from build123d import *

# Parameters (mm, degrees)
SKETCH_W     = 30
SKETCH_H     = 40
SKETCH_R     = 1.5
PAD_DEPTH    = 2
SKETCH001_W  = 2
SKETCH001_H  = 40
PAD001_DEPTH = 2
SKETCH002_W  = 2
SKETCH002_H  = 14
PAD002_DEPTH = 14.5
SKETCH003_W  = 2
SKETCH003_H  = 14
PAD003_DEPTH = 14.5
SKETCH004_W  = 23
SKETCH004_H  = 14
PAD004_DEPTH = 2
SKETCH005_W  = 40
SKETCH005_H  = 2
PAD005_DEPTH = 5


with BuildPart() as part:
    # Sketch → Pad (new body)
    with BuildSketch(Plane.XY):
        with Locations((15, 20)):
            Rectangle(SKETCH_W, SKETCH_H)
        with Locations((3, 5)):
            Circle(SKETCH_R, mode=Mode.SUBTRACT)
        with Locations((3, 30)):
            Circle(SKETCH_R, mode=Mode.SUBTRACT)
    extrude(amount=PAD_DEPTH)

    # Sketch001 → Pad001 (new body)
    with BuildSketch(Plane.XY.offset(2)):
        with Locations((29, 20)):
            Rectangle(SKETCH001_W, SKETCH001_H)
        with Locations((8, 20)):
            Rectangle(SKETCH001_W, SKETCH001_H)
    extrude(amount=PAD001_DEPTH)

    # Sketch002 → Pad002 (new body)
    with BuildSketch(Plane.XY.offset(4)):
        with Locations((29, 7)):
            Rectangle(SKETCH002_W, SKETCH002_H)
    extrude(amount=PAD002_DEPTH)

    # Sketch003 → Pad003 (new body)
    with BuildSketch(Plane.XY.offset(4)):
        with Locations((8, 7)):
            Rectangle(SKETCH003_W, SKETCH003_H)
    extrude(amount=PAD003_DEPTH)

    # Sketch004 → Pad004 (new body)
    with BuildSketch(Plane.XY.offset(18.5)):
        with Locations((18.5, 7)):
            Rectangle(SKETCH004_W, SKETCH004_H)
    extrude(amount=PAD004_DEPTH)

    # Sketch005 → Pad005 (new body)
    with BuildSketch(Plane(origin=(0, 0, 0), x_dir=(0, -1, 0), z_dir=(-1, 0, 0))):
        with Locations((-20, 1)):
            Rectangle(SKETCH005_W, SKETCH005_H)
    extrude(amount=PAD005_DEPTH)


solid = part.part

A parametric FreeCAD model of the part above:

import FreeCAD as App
import Part
import Sketcher
from FreeCAD import Vector
Q = App.Units.Quantity

doc = App.newDocument("Part")
body = doc.addObject("PartDesign::Body", "Body")

sketch1 = body.newObject("Sketcher::SketchObject", "Sketch")
sketch1.AttachmentSupport = (doc.getObject("XY_Plane"), [""])
sketch1.MapMode = "FlatFace"
sketch1.addGeometry([
    Part.LineSegment(Vector(0, 40, 0), Vector(0, 0, 0)),
    Part.LineSegment(Vector(0, 0, 0), Vector(30, 0, 0)),
    Part.LineSegment(Vector(30, 0, 0), Vector(30, 40, 0)),
    Part.LineSegment(Vector(30, 40, 0), Vector(0, 40, 0)),
    Part.Circle(Vector(3, 5, 0), Vector(0, 0, 1), 1.5),
    Part.Circle(Vector(3, 30, 0), Vector(0, 0, 1), 1.5),
], False)
sketch1.addConstraint([
    Sketcher.Constraint("Coincident", 0, 2, 1, 1),
    Sketcher.Constraint("Coincident", 1, 2, 2, 1),
    Sketcher.Constraint("Coincident", 2, 2, 3, 1),
    Sketcher.Constraint("Coincident", 3, 2, 0, 1),
    Sketcher.Constraint("Vertical", 0),
    Sketcher.Constraint("Horizontal", 1),
    Sketcher.Constraint("Vertical", 2),
    Sketcher.Constraint("Horizontal", 3),
    Sketcher.Constraint("Coincident", 0, 2, -1, 1),
    Sketcher.Constraint("Equal", 4, 5),
    Sketcher.Constraint("Vertical", 4, 3, 5, 3),
    Sketcher.Constraint("Diameter", 4, Q("3 mm")),
    Sketcher.Constraint("DistanceX", 1, 1, 1, 2, Q("30 mm")),
    Sketcher.Constraint("DistanceY", 0, 2, 0, 1, Q("40 mm")),
    Sketcher.Constraint("DistanceX", -1, 1, 4, 3, Q("3 mm")),
    Sketcher.Constraint("DistanceY", -1, 1, 4, 3, Q("5 mm")),
    Sketcher.Constraint("DistanceY", -1, 1, 5, 3, Q("30 mm")),
])
pad1 = body.newObject("PartDesign::Pad", "Pad")
pad1.Profile = sketch1
pad1.Length = 2

sketch2 = body.newObject("Sketcher::SketchObject", "Sketch001")
sketch2.AttachmentSupport = (doc.getObject("XY_Plane"), [""])
sketch2.MapMode = "FlatFace"
sketch2.AttachmentOffset = App.Placement(Vector(0, 0, 2), App.Rotation())
sketch2.addGeometry([
    Part.LineSegment(Vector(28, 40, 0), Vector(28, 0, 0)),
    Part.LineSegment(Vector(28, 0, 0), Vector(30, 0, 0)),
    Part.LineSegment(Vector(30, 0, 0), Vector(30, 40, 0)),
    Part.LineSegment(Vector(30, 40, 0), Vector(28, 40, 0)),
    Part.LineSegment(Vector(7, 40, 0), Vector(7, 0, 0)),
    Part.LineSegment(Vector(7, 0, 0), Vector(9, 0, 0)),
    Part.LineSegment(Vector(9, 0, 0), Vector(9, 40, 0)),
    Part.LineSegment(Vector(9, 40, 0), Vector(7, 40, 0)),
], False)
sketch2.addConstraint([
    Sketcher.Constraint("Coincident", 0, 2, 1, 1),
    Sketcher.Constraint("Coincident", 1, 2, 2, 1),
    Sketcher.Constraint("Coincident", 2, 2, 3, 1),
    Sketcher.Constraint("Coincident", 3, 2, 0, 1),
    Sketcher.Constraint("Coincident", 4, 2, 5, 1),
    Sketcher.Constraint("Coincident", 5, 2, 6, 1),
    Sketcher.Constraint("Coincident", 6, 2, 7, 1),
    Sketcher.Constraint("Coincident", 7, 2, 4, 1),
    Sketcher.Constraint("Vertical", 0),
    Sketcher.Constraint("Horizontal", 1),
    Sketcher.Constraint("Vertical", 2),
    Sketcher.Constraint("Horizontal", 3),
    Sketcher.Constraint("Vertical", 4),
    Sketcher.Constraint("Horizontal", 5),
    Sketcher.Constraint("Vertical", 6),
    Sketcher.Constraint("Horizontal", 7),
    Sketcher.Constraint("PointOnObject", 0, 2, -1),
    Sketcher.Constraint("PointOnObject", 4, 2, -1),
    Sketcher.Constraint("Horizontal", 3, 2, 6, 2),
    Sketcher.Constraint("Equal", 3, 5),
    Sketcher.Constraint("DistanceX", 1, 1, 1, 2, Q("2 mm")),
    Sketcher.Constraint("DistanceY", 0, 2, 0, 1, Q("40 mm")),
    Sketcher.Constraint("DistanceX", -1, 1, 0, 2, Q("28 mm")),
    Sketcher.Constraint("DistanceX", -1, 1, 4, 2, Q("7 mm")),
])
pad2 = body.newObject("PartDesign::Pad", "Pad001")
pad2.Profile = sketch2
pad2.Length = 2

sketch3 = body.newObject("Sketcher::SketchObject", "Sketch002")
sketch3.AttachmentSupport = (doc.getObject("XY_Plane"), [""])
sketch3.MapMode = "FlatFace"
sketch3.AttachmentOffset = App.Placement(Vector(0, 0, 4), App.Rotation())
sketch3.addGeometry([
    Part.LineSegment(Vector(28, 14, 0), Vector(28, 0, 0)),
    Part.LineSegment(Vector(28, 0, 0), Vector(30, 0, 0)),
    Part.LineSegment(Vector(30, 0, 0), Vector(30, 14, 0)),
    Part.LineSegment(Vector(30, 14, 0), Vector(28, 14, 0)),
], False)
sketch3.addConstraint([
    Sketcher.Constraint("Coincident", 0, 2, 1, 1),
    Sketcher.Constraint("Coincident", 1, 2, 2, 1),
    Sketcher.Constraint("Coincident", 2, 2, 3, 1),
    Sketcher.Constraint("Coincident", 3, 2, 0, 1),
    Sketcher.Constraint("Vertical", 0),
    Sketcher.Constraint("Horizontal", 1),
    Sketcher.Constraint("Vertical", 2),
    Sketcher.Constraint("Horizontal", 3),
    Sketcher.Constraint("PointOnObject", 0, 2, -1),
    Sketcher.Constraint("DistanceX", 1, 1, 1, 2, Q("2 mm")),
    Sketcher.Constraint("DistanceY", 0, 2, 0, 1, Q("14 mm")),
    Sketcher.Constraint("DistanceX", -1, 1, 0, 2, Q("28 mm")),
])
pad3 = body.newObject("PartDesign::Pad", "Pad002")
pad3.Profile = sketch3
pad3.Length = 14.5

sketch4 = body.newObject("Sketcher::SketchObject", "Sketch003")
sketch4.AttachmentSupport = (doc.getObject("XY_Plane"), [""])
sketch4.MapMode = "FlatFace"
sketch4.AttachmentOffset = App.Placement(Vector(0, 0, 4), App.Rotation())
sketch4.addGeometry([
    Part.LineSegment(Vector(7, 14, 0), Vector(7, 0, 0)),
    Part.LineSegment(Vector(7, 0, 0), Vector(9, 0, 0)),
    Part.LineSegment(Vector(9, 0, 0), Vector(9, 14, 0)),
    Part.LineSegment(Vector(9, 14, 0), Vector(7, 14, 0)),
], False)
sketch4.addConstraint([
    Sketcher.Constraint("Coincident", 0, 2, 1, 1),
    Sketcher.Constraint("Coincident", 1, 2, 2, 1),
    Sketcher.Constraint("Coincident", 2, 2, 3, 1),
    Sketcher.Constraint("Coincident", 3, 2, 0, 1),
    Sketcher.Constraint("Vertical", 0),
    Sketcher.Constraint("Horizontal", 1),
    Sketcher.Constraint("Vertical", 2),
    Sketcher.Constraint("Horizontal", 3),
    Sketcher.Constraint("PointOnObject", 0, 2, -1),
    Sketcher.Constraint("DistanceX", 1, 1, 1, 2, Q("2 mm")),
    Sketcher.Constraint("DistanceY", 0, 2, 0, 1, Q("14 mm")),
    Sketcher.Constraint("DistanceX", -1, 1, 0, 2, Q("7 mm")),
])
pad4 = body.newObject("PartDesign::Pad", "Pad003")
pad4.Profile = sketch4
pad4.Length = 14.5

sketch5 = body.newObject("Sketcher::SketchObject", "Sketch004")
sketch5.AttachmentSupport = (doc.getObject("XY_Plane"), [""])
sketch5.MapMode = "FlatFace"
sketch5.AttachmentOffset = App.Placement(Vector(0, 0, 18.5), App.Rotation())
sketch5.addGeometry([
    Part.LineSegment(Vector(7, 14, 0), Vector(7, 0, 0)),
    Part.LineSegment(Vector(7, 0, 0), Vector(30, 0, 0)),
    Part.LineSegment(Vector(30, 0, 0), Vector(30, 14, 0)),
    Part.LineSegment(Vector(30, 14, 0), Vector(7, 14, 0)),
], False)
sketch5.addConstraint([
    Sketcher.Constraint("Coincident", 0, 2, 1, 1),
    Sketcher.Constraint("Coincident", 1, 2, 2, 1),
    Sketcher.Constraint("Coincident", 2, 2, 3, 1),
    Sketcher.Constraint("Coincident", 3, 2, 0, 1),
    Sketcher.Constraint("Vertical", 0),
    Sketcher.Constraint("Horizontal", 1),
    Sketcher.Constraint("Vertical", 2),
    Sketcher.Constraint("Horizontal", 3),
    Sketcher.Constraint("PointOnObject", 0, 2, -1),
    Sketcher.Constraint("DistanceX", 1, 1, 1, 2, Q("23 mm")),
    Sketcher.Constraint("DistanceY", 0, 2, 0, 1, Q("14 mm")),
    Sketcher.Constraint("DistanceX", -1, 1, 0, 2, Q("7 mm")),
])
pad5 = body.newObject("PartDesign::Pad", "Pad004")
pad5.Profile = sketch5
pad5.Length = 2

sketch6 = body.newObject("Sketcher::SketchObject", "Sketch005")
sketch6.AttachmentSupport = (doc.getObject("YZ_Plane"), [""])
sketch6.MapMode = "FlatFace"
sketch6.addGeometry([
    Part.LineSegment(Vector(40, 2, 0), Vector(40, 0, 0)),
    Part.LineSegment(Vector(40, 0, 0), Vector(0, 0, 0)),
    Part.LineSegment(Vector(0, 0, 0), Vector(0, 2, 0)),
    Part.LineSegment(Vector(0, 2, 0), Vector(40, 2, 0)),
], False)
sketch6.addConstraint([
    Sketcher.Constraint("Coincident", 0, 2, 1, 1),
    Sketcher.Constraint("Coincident", 1, 2, 2, 1),
    Sketcher.Constraint("Coincident", 2, 2, 3, 1),
    Sketcher.Constraint("Coincident", 3, 2, 0, 1),
    Sketcher.Constraint("Vertical", 0),
    Sketcher.Constraint("Horizontal", 1),
    Sketcher.Constraint("Vertical", 2),
    Sketcher.Constraint("Horizontal", 3),
    Sketcher.Constraint("Coincident", 1, 2, -1, 1),
    Sketcher.Constraint("DistanceX", 1, 2, 1, 1, Q("40 mm")),
    Sketcher.Constraint("DistanceY", 0, 2, 0, 1, Q("2 mm")),
])
pad6 = body.newObject("PartDesign::Pad", "Pad005")
pad6.Profile = sketch6
pad6.Length = 5
pad6.Reversed = True

doc.recompute()
